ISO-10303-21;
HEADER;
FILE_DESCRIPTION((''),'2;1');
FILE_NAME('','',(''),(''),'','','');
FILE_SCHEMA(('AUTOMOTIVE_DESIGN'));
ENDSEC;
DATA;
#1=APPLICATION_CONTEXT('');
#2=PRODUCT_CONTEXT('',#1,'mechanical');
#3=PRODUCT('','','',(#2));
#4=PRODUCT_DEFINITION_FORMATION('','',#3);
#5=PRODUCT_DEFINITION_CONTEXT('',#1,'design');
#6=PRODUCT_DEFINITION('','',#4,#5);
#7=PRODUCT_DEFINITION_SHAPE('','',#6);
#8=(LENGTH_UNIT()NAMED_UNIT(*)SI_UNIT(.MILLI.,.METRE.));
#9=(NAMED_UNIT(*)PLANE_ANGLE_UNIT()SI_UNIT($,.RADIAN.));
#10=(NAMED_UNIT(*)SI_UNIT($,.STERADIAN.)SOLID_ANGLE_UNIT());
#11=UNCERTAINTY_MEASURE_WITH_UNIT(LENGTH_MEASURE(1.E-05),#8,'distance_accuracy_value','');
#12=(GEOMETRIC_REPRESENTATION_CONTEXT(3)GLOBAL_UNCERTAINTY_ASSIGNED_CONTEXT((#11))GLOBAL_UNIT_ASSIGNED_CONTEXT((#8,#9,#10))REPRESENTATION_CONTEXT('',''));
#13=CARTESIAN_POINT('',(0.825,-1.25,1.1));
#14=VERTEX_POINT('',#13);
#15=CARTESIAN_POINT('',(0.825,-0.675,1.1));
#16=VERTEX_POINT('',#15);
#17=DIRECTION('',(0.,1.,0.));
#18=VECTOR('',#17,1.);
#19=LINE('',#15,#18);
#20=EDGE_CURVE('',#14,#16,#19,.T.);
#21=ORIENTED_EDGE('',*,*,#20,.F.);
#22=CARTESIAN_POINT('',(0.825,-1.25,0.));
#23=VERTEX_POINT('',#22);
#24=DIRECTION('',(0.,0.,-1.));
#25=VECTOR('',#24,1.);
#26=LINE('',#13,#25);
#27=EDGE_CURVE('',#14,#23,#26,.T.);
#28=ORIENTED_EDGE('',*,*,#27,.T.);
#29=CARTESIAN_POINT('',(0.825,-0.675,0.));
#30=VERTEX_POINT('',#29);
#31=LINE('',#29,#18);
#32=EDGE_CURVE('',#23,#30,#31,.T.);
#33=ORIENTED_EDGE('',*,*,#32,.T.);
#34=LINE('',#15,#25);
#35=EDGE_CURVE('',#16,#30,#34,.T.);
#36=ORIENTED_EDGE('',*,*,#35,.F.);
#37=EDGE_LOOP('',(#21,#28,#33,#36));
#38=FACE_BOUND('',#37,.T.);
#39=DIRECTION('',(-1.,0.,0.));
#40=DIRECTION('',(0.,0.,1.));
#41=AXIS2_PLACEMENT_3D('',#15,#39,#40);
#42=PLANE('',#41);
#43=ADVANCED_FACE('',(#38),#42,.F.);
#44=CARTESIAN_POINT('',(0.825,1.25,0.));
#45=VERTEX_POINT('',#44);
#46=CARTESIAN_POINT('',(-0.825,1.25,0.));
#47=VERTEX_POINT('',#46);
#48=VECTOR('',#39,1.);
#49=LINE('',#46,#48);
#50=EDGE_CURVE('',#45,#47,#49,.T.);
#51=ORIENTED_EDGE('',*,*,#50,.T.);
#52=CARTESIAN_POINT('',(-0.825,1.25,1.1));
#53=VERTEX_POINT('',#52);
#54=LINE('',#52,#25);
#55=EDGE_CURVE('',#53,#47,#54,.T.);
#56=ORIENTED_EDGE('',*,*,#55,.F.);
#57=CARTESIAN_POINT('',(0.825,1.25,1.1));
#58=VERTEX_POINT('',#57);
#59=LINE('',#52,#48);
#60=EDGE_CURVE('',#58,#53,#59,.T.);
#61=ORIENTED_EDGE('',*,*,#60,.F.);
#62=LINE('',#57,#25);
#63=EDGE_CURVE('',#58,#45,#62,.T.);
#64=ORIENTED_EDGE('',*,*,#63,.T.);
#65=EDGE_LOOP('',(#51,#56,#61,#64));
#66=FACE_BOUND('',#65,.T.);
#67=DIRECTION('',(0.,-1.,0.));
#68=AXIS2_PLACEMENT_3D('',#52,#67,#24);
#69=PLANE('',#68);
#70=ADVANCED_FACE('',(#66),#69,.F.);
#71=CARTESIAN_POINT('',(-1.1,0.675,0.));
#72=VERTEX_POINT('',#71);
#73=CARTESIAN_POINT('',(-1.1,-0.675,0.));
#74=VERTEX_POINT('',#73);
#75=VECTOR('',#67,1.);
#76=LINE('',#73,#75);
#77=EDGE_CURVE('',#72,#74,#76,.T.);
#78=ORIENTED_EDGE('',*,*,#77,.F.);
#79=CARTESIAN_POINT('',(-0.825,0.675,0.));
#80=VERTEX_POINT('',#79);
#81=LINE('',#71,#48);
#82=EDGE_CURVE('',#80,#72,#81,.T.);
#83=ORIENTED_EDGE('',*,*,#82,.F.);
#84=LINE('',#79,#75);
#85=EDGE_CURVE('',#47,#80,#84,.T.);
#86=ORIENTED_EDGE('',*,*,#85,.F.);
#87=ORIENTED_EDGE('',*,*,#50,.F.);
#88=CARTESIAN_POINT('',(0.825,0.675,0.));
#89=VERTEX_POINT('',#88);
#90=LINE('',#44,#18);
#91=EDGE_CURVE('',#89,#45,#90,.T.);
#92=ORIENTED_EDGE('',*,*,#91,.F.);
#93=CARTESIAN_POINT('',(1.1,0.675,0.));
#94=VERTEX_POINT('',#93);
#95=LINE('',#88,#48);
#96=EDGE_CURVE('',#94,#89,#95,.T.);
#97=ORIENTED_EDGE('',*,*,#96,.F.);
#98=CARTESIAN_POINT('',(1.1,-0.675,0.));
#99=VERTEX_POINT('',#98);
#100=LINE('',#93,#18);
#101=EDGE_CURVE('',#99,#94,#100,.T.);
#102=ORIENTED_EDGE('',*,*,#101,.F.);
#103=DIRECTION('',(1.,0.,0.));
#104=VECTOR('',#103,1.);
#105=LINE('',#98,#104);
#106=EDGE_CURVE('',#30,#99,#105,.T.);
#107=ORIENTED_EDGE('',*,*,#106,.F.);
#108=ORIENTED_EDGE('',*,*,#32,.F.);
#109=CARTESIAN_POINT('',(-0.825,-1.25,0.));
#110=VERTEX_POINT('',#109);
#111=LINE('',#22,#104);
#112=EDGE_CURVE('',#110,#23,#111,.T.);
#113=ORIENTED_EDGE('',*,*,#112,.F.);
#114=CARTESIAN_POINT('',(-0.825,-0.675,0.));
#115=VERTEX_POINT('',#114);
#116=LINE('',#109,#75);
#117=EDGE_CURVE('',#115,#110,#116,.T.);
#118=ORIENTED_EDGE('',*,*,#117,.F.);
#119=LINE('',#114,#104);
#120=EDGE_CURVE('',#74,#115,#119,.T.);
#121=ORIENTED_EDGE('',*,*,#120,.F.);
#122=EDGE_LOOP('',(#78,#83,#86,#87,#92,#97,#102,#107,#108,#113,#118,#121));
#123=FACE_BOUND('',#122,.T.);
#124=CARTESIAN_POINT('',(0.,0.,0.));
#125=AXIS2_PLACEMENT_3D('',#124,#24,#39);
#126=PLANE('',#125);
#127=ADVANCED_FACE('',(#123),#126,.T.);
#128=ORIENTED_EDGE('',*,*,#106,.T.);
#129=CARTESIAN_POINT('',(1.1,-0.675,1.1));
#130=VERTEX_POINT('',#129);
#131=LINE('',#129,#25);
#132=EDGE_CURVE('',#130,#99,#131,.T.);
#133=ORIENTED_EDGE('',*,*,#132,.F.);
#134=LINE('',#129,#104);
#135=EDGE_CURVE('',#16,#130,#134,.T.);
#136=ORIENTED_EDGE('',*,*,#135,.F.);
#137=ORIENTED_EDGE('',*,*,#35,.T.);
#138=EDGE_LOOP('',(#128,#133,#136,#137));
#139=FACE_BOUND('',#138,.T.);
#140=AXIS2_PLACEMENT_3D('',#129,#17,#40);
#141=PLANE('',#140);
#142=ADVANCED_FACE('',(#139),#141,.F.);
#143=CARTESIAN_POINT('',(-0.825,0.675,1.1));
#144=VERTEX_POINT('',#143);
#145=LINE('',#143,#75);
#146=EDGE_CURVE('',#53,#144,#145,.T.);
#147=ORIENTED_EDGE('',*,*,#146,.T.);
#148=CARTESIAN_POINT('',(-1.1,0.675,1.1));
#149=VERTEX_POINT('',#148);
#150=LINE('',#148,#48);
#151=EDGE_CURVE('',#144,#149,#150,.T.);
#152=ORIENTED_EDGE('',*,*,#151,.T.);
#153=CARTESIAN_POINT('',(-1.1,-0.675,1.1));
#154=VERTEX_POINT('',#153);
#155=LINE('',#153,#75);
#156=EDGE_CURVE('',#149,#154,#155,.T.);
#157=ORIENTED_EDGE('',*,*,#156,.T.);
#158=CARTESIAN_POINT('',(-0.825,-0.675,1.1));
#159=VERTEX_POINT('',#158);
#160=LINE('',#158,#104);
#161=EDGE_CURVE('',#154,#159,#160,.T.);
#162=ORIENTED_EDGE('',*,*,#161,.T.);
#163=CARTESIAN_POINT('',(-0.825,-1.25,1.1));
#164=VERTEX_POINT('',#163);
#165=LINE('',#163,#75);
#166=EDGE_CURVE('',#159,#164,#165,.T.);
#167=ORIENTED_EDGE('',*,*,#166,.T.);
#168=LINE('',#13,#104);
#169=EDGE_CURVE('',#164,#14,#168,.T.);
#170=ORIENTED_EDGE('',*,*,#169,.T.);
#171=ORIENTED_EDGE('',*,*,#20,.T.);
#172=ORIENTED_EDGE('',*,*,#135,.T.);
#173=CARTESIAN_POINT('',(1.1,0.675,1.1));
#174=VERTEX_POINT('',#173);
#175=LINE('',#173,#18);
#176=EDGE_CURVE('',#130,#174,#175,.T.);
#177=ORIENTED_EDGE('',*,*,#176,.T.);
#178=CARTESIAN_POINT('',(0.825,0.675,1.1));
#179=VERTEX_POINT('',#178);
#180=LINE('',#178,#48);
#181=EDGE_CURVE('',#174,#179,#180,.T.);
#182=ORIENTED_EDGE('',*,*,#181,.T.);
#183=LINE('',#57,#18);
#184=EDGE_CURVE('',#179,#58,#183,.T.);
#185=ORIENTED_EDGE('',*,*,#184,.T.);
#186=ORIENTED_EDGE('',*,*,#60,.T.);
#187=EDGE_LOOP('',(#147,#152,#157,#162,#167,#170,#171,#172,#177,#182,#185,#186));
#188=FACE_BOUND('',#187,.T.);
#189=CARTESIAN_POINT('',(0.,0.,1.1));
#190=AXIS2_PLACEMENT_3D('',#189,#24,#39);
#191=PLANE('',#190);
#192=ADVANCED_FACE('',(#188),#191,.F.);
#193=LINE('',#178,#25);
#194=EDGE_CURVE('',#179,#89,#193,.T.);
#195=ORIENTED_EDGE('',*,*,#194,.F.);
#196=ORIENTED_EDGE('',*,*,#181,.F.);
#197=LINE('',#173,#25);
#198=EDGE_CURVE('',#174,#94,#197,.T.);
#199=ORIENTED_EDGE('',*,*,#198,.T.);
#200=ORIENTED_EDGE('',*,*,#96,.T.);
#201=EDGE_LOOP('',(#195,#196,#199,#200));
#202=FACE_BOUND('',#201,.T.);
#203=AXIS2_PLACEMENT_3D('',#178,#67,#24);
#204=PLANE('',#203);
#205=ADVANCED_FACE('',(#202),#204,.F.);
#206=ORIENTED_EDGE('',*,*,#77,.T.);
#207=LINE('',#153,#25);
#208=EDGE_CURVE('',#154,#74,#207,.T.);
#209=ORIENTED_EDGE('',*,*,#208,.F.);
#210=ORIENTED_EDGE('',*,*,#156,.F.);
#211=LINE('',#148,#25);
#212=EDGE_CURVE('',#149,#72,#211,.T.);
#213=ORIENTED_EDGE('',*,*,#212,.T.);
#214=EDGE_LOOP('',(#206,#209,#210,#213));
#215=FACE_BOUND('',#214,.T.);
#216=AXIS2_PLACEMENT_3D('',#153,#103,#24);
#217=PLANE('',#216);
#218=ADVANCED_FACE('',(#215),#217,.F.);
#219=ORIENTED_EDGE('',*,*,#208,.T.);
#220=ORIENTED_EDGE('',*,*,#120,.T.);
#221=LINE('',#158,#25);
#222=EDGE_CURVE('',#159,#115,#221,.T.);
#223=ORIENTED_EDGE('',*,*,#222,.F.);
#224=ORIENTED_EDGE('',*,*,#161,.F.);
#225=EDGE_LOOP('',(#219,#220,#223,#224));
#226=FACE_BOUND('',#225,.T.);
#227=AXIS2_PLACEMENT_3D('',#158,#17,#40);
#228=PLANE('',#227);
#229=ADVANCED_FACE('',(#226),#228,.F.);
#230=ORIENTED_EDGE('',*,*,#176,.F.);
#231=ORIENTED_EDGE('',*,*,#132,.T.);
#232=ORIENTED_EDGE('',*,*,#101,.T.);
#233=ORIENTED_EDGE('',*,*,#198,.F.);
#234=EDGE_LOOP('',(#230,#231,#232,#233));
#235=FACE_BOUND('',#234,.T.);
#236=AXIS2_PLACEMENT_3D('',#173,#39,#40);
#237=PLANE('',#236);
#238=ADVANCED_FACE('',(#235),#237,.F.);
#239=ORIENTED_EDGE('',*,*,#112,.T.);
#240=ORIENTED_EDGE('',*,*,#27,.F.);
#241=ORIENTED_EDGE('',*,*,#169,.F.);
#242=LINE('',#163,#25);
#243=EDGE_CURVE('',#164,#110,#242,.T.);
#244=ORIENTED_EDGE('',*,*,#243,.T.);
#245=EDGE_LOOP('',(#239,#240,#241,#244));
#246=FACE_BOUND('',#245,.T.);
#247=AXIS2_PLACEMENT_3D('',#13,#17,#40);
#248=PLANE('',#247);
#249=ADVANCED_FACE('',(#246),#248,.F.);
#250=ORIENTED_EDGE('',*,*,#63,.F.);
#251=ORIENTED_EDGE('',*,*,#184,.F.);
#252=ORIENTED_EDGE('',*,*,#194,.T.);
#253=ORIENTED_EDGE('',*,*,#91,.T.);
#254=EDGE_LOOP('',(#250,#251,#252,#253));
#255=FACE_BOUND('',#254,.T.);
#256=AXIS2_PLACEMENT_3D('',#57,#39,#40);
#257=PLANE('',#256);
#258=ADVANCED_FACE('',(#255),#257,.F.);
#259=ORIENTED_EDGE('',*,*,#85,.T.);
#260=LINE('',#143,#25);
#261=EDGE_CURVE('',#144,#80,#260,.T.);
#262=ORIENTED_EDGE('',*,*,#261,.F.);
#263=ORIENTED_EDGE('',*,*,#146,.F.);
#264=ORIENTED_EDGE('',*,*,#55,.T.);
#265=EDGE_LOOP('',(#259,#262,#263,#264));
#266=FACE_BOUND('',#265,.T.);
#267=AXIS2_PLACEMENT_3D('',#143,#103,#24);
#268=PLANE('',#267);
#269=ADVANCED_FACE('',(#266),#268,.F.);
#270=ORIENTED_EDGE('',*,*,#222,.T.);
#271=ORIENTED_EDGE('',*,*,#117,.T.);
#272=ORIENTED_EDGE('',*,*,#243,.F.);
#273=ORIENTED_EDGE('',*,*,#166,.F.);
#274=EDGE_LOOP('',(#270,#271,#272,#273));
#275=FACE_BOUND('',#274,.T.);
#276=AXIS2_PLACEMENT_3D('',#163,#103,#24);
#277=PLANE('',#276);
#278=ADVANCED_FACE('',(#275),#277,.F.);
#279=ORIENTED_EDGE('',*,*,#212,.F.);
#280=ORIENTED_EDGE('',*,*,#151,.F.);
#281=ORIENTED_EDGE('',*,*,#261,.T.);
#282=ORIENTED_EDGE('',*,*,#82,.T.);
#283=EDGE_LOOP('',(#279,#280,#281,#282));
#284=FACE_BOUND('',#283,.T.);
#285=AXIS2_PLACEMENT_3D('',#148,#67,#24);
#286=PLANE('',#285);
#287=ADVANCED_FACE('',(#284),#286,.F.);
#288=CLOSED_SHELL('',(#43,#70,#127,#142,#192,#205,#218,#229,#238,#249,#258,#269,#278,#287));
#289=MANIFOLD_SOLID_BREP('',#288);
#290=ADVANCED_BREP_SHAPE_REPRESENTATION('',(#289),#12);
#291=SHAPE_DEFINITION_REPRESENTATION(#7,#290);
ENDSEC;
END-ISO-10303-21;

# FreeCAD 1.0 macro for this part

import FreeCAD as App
import Part
import Sketcher
from FreeCAD import Vector
Q = App.Units.Quantity


def add_polygon(sketch, points):
    """Adds a closed chain of lines whose ends are joined by coincident constraints."""
    first, n = sketch.GeometryCount, len(points)
    for a, b in zip(points, points[1:] + points[:1]):
        sketch.addGeometry(Part.LineSegment(App.Vector(*a, 0), App.Vector(*b, 0)), False)
    for i in range(n):
        sketch.addConstraint(Sketcher.Constraint("Coincident", first + i, 2, first + (i + 1) % n, 1))

doc = App.newDocument("Part")
body = doc.addObject("PartDesign::Body", "Body")

# Sketch on XY plane
sketch1 = doc.addObject("Sketcher::SketchObject", "Sketch")
body.addObject(sketch1)
sketch1.AttachmentSupport = (doc.XY_Plane, [""])
sketch1.MapMode = "FlatFace"
add_polygon(sketch1, [(0.82, -0.68), (1.1, -0.68), (1.1, 0.68), (0.82, 0.68), (0.82, 1.25), (-0.82, 1.25), (-0.82, 0.68), (-1.1, 0.68), (-1.1, -0.68), (-0.82, -0.68), (-0.82, -1.25), (0.82, -1.25)])  # lines 0-11
sketch1.addConstraint(Sketcher.Constraint("Horizontal", 0))
sketch1.addConstraint(Sketcher.Constraint("Vertical", 1))
sketch1.addConstraint(Sketcher.Constraint("Horizontal", 2))
sketch1.addConstraint(Sketcher.Constraint("Vertical", 3))
sketch1.addConstraint(Sketcher.Constraint("Horizontal", 4))
sketch1.addConstraint(Sketcher.Constraint("Vertical", 5))
sketch1.addConstraint(Sketcher.Constraint("Horizontal", 6))
sketch1.addConstraint(Sketcher.Constraint("Vertical", 7))
sketch1.addConstraint(Sketcher.Constraint("Horizontal", 8))
sketch1.addConstraint(Sketcher.Constraint("Vertical", 9))
sketch1.addConstraint(Sketcher.Constraint("Horizontal", 10))
sketch1.addConstraint(Sketcher.Constraint("Vertical", 11))
sketch1.addConstraint(Sketcher.Constraint("Symmetric", 0, 2, 6, 2, -1, 1))
sketch1.addConstraint(Sketcher.Constraint("Symmetric", 2, 2, 8, 2, -1, 1))
sketch1.addConstraint(Sketcher.Constraint("Symmetric", 4, 2, 10, 2, -1, 1))
sketch1.addConstraint(Sketcher.Constraint("Symmetric", 2, 2, 5, 2, -2))
sketch1.addConstraint(Sketcher.Constraint("DistanceX", 4, 2, 4, 1, Q("1.65 mm")))
sketch1.addConstraint(Sketcher.Constraint("DistanceY", 1, 1, 1, 2, Q("1.35 mm")))
sketch1.addConstraint(Sketcher.Constraint("DistanceX", -1, 1, 0, 2, Q("1.1 mm")))
sketch1.addConstraint(Sketcher.Constraint("DistanceY", 3, 1, 3, 2, Q("0.575 mm")))
pad1 = doc.addObject("PartDesign::Pad", "Pad")
body.addObject(pad1)
pad1.Profile = sketch1
pad1.Length = 1.1

doc.recompute()
